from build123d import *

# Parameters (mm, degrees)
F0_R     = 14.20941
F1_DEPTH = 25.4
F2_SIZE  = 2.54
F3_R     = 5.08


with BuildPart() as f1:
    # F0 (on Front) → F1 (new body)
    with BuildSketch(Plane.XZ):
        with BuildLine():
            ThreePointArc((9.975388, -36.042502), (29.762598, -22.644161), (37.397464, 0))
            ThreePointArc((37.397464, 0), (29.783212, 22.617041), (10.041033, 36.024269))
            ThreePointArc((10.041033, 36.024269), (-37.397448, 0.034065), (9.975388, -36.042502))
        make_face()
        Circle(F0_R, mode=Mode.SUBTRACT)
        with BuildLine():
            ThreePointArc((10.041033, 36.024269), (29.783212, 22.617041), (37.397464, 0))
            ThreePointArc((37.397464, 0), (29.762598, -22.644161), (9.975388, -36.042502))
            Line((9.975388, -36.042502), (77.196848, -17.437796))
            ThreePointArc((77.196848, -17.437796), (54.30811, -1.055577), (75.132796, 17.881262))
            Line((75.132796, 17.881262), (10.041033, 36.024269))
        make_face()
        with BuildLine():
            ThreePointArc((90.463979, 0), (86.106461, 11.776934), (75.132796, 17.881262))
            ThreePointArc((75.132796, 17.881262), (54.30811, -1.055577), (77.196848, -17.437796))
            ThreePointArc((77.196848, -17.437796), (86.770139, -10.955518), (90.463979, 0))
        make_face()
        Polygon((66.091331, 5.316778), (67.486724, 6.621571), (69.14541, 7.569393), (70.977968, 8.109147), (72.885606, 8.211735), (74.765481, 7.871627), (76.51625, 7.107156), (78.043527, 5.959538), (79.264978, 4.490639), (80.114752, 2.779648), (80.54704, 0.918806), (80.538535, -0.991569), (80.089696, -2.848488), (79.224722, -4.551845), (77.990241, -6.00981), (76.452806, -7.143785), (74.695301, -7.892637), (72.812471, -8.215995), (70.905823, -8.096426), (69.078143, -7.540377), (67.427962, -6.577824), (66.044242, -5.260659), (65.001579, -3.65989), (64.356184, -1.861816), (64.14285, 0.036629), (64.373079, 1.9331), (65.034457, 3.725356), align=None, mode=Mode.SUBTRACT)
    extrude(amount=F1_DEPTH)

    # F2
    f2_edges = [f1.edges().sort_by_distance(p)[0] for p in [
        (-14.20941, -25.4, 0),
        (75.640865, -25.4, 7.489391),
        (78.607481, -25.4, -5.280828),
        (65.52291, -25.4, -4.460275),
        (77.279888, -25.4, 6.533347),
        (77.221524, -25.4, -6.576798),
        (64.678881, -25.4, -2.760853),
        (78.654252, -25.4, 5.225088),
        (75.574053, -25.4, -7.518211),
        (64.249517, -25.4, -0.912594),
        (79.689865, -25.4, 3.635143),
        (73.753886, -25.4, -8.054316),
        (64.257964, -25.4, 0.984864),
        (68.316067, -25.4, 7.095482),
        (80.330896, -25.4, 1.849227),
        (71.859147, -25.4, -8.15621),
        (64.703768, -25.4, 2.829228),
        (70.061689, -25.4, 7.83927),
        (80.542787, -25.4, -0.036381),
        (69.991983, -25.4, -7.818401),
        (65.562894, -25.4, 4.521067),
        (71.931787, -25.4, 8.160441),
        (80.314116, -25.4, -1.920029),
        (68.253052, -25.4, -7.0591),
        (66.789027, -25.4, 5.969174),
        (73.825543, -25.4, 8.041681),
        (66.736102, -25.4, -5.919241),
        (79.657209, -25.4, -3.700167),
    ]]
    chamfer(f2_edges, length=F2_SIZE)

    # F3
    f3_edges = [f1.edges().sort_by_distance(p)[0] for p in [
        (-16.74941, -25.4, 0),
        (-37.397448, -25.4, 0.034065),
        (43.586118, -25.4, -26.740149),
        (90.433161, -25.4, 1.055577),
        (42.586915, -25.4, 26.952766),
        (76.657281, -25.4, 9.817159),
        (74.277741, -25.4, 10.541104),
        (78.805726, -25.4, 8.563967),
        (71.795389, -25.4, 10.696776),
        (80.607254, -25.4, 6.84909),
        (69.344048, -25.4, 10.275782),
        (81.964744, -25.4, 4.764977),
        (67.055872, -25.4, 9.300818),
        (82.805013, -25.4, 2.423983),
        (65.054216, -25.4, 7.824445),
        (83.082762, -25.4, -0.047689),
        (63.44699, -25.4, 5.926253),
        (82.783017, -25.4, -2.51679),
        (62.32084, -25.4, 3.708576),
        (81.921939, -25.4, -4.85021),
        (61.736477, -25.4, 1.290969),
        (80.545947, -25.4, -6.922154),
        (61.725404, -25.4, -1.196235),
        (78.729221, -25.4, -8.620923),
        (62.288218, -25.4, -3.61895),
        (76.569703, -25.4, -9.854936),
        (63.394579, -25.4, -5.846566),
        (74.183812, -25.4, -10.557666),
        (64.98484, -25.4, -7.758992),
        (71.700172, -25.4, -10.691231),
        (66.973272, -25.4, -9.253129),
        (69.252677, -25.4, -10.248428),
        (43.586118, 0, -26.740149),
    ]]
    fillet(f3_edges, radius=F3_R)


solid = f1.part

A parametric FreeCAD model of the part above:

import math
import FreeCAD as App
import Part
import Sketcher
Q = App.Units.Quantity


def edges_at(feature, points):
    """Names of the edges that pass closest to the given points."""
    edges = feature.Shape.Edges
    near = lambda p: min(range(len(edges)), key=lambda i: edges[i].distToShape(Part.Vertex(*p))[0])
    return sorted({f"Edge{near(p) + 1}" for p in points})


def add_polygon(sketch, points):
    """Adds a closed chain of lines whose ends are joined by coincident constraints."""
    first, n = sketch.GeometryCount, len(points)
    for a, b in zip(points, points[1:] + points[:1]):
        sketch.addGeometry(Part.LineSegment(App.Vector(*a, 0), App.Vector(*b, 0)), False)
    for i in range(n):
        sketch.addConstraint(Sketcher.Constraint("Coincident", first + i, 2, first + (i + 1) % n, 1))

doc = App.newDocument("Part")
body = doc.addObject("PartDesign::Body", "Body")

# Sketch on XZ plane
sketch1 = body.newObject("Sketcher::SketchObject", "Sketch")
sketch1.AttachmentSupport = (doc.getObject("XZ_Plane"), [""])
sketch1.MapMode = "FlatFace"
sketch1.addGeometry(Part.ArcOfCircle(Part.Circle(App.Vector(0, 0, 0), App.Vector(0, 0, 1), 37.397464), math.radians(74.425269), math.radians(285.470351)), False)  # 0
sketch1.addGeometry(Part.LineSegment(App.Vector(9.975388, -36.042502, 0), App.Vector(77.196848, -17.437796, 0)), False)  # 1
sketch1.addGeometry(Part.ArcOfCircle(Part.Circle(App.Vector(72.370637, 0, 0), App.Vector(0, 0, 1), 18.093342), math.radians(-74.529653), math.radians(0.000001)), False)  # 2
sketch1.addGeometry(Part.ArcOfCircle(Part.Circle(App.Vector(72.370636, 0, 0), App.Vector(0, 0, 1), 18.093343), math.radians(-0.000001), math.radians(81.218795)), False)  # 3
sketch1.addGeometry(Part.LineSegment(App.Vector(75.132796, 17.881262, 0), App.Vector(10.041033, 36.024269, 0)), False)  # 4
add_polygon(sketch1, [(65.034457, 3.725356), (66.091331, 5.316778), (67.486724, 6.621571), (69.14541, 7.569393), (70.977968, 8.109147), (72.885606, 8.211735), (74.765481, 7.871627), (76.51625, 7.107156), (78.043527, 5.959538), (79.264978, 4.490639), (80.114752, 2.779648), (80.54704, 0.918806), (80.538535, -0.991569), (80.089696, -2.848488), (79.224722, -4.551845), (77.990241, -6.00981), (76.452806, -7.143785), (74.695301, -7.892637), (72.812471, -8.215995), (70.905823, -8.096426), (69.078143, -7.540377), (67.427962, -6.577824), (66.044242, -5.260659), (65.001579, -3.65989), (64.356184, -1.861816), (64.14285, 0.036629), (64.373079, 1.9331)])  # lines 5-31
sketch1.addGeometry(Part.Circle(App.Vector(0, 0, 0), App.Vector(0, 0, 1), 14.20941), False)  # 32
sketch1.addConstraint([
    Sketcher.Constraint("Coincident", 0, 2, 1, 1),
    Sketcher.Constraint("Coincident", 1, 2, 2, 1),
    Sketcher.Constraint("Coincident", 2, 2, 3, 1),
    Sketcher.Constraint("Coincident", 3, 2, 4, 1),
    Sketcher.Constraint("Coincident", 4, 2, 0, 1),
    Sketcher.Constraint("Coincident", 0, 3, -1, 1),
    Sketcher.Constraint("Coincident", 32, 3, -1, 1),
    Sketcher.Constraint("Coincident", 3, 3, 2, 3),
    Sketcher.Constraint("PointOnObject", 2, 3, -1),
    Sketcher.Constraint("PointOnObject", 2, 2, -1),
    Sketcher.Constraint("Diameter", 32, 28.41882),
    Sketcher.Constraint("DistanceY", 28, 2, -1, 1, Q("0.0732998 in")),
    Sketcher.Constraint("Radius", 0, 37.397464),
    Sketcher.Constraint("Radius", 2, 18.093342),
    Sketcher.Constraint("DistanceY", 13, 2, 9, 2, Q("0.1464998 in")),
    Sketcher.Constraint("DistanceX", 2, 3, 17, 2, Q("0.3039 in")),
    Sketcher.Constraint("DistanceY", 19, 2, 18, 2, Q("0.0574002 in")),
    Sketcher.Constraint("DistanceX", -1, 1, 21, 2, 74.695301),
    Sketcher.Constraint("DistanceY", -1, 1, 30, 2, 1.9331),
    Sketcher.Constraint("DistanceY", 0, 2, 0, 3, 36.042502),
    Sketcher.Constraint("DistanceY", 13, 2, 12, 2, 1.468899),
    Sketcher.Constraint("DistanceX", 11, 2, 14, 2, 3.598502),
    Sketcher.Constraint("DistanceX", 2, 3, 16, 2, 8.167898),
    Sketcher.Constraint("DistanceX", 19, 2, 15, 2, 2.556799),
    Sketcher.Constraint("DistanceY", 23, 2, 25, 2, 1.518602),
    Sketcher.Constraint("DistanceX", 26, 2, 24, 2, 3.033901),
    Sketcher.Constraint("DistanceX", 30, 2, 27, 2, 0.6285),
    Sketcher.Constraint("Distance", 4, 67.57297),
    Sketcher.Constraint("DistanceX", -1, 1, 1, 2, 77.196848),
    Sketcher.Constraint("DistanceX", -1, 1, 2, 2, 90.463979),
    Sketcher.Constraint("DistanceY", -1, 1, 4, 2, 36.024269),
    Sketcher.Constraint("DistanceX", -1, 1, 5, 2, 66.091331),
    Sketcher.Constraint("DistanceY", -1, 1, 5, 2, 5.316778),
    Sketcher.Constraint("DistanceY", -1, 1, 6, 2, 6.621571),
    Sketcher.Constraint("DistanceX", -1, 1, 7, 2, 69.14541),
    Sketcher.Constraint("DistanceX", -1, 1, 8, 2, 70.977968),
    Sketcher.Constraint("DistanceX", -1, 1, 10, 2, 74.765481),
    Sketcher.Constraint("DistanceX", -1, 1, 11, 2, 76.51625),
    Sketcher.Constraint("DistanceY", -1, 1, 12, 2, 5.959538),
    Sketcher.Constraint("DistanceX", -1, 1, 13, 2, 79.264978),
    Sketcher.Constraint("DistanceX", -1, 1, 15, 2, 80.54704),
    Sketcher.Constraint("DistanceY", 16, 2, -1, 1, 0.991569),
    Sketcher.Constraint("DistanceY", 17, 2, -1, 1, 2.848488),
    Sketcher.Constraint("DistanceX", -1, 1, 18, 2, 79.224722),
    Sketcher.Constraint("DistanceY", 19, 2, -1, 1, 6.00981),
    Sketcher.Constraint("DistanceX", -1, 1, 22, 2, 72.812471),
    Sketcher.Constraint("DistanceX", -1, 1, 25, 2, 67.427962),
    Sketcher.Constraint("DistanceX", -1, 1, 26, 2, 66.044242),
    Sketcher.Constraint("DistanceY", 26, 2, -1, 1, 5.260659),
    Sketcher.Constraint("DistanceX", -1, 1, 27, 2, 65.001579),
    Sketcher.Constraint("DistanceY", 27, 2, -1, 1, 3.65989),
    Sketcher.Constraint("DistanceX", -1, 1, 29, 2, 64.14285),
    Sketcher.Constraint("DistanceY", -1, 1, 29, 2, 0.036629),
    Sketcher.Constraint("DistanceY", 6, 2, 7, 2, 0.947822),
    Sketcher.Constraint("DistanceY", 5, 2, 8, 2, 2.792369),
    Sketcher.Constraint("DistanceX", 3, 3, 9, 2, 0.51497),
    Sketcher.Constraint("DistanceY", 10, 2, 8, 2, 0.23752),
    Sketcher.Constraint("DistanceY", 11, 2, 10, 2, 0.764471),
    Sketcher.Constraint("DistanceX", 9, 2, 12, 2, 5.157921),
    Sketcher.Constraint("DistanceY", 14, 2, 13, 2, 1.710991),
    Sketcher.Constraint("DistanceY", 15, 2, 14, 2, 1.860842),
    Sketcher.Constraint("DistanceY", 20, 2, 18, 2, 2.59194),
    Sketcher.Constraint("DistanceX", 20, 2, 17, 2, 3.63689),
    Sketcher.Constraint("DistanceY", 21, 2, 20, 2, 0.748852),
    Sketcher.Constraint("DistanceY", 22, 2, 20, 2, 1.07221),
    Sketcher.Constraint("DistanceX", 23, 2, 22, 2, 1.906648),
    Sketcher.Constraint("DistanceY", 22, 2, 23, 2, 0.119569),
    Sketcher.Constraint("DistanceY", 23, 2, 24, 2, 0.556049),
    Sketcher.Constraint("DistanceX", 28, 2, 24, 2, 4.721959),
    Sketcher.Constraint("DistanceY", 28, 2, 31, 2, 5.587172),
    Sketcher.Constraint("Distance", 5, 1.910394),
    Sketcher.Constraint("Distance", 6, 1.910394),
])
pad1 = body.newObject("PartDesign::Pad", "Pad")
pad1.Profile = sketch1
pad1.Length = Q("1 in")
doc.recompute()

chamfer = body.newObject("PartDesign::Chamfer", "Chamfer")
chamfer.Base = (pad1, edges_at(pad1, [
    (-14.209, -25.4, 0),
    (75.641, -25.4, 7.489),
    (78.607, -25.4, -5.281),
    (65.523, -25.4, -4.46),
    (77.28, -25.4, 6.533),
    (77.222, -25.4, -6.577),
    (64.679, -25.4, -2.761),
    (78.654, -25.4, 5.225),
    (75.574, -25.4, -7.518),
    (64.25, -25.4, -0.913),
    (79.69, -25.4, 3.635),
    (73.754, -25.4, -8.054),
    (64.258, -25.4, 0.985),
    (68.316, -25.4, 7.095),
    (80.331, -25.4, 1.849),
    (71.859, -25.4, -8.156),
    (64.704, -25.4, 2.829),
    (70.062, -25.4, 7.839),
    (80.543, -25.4, -0.036),
    (69.992, -25.4, -7.818),
    (65.563, -25.4, 4.521),
    (71.932, -25.4, 8.16),
    (80.314, -25.4, -1.92),
    (68.253, -25.4, -7.059),
    (66.789, -25.4, 5.969),
    (73.826, -25.4, 8.042),
    (66.736, -25.4, -5.919),
    (79.657, -25.4, -3.7),
]))
chamfer.Size = Q("0.1 in")
doc.recompute()

fillet = body.newObject("PartDesign::Fillet", "Fillet")
fillet.Base = (chamfer, edges_at(chamfer, [
    (-16.749, -25.4, 0),
    (-37.397, -25.4, 0.034),
    (43.586, -25.4, -26.74),
    (86.106, -25.4, 11.777),
    (42.587, -25.4, 26.953),
    (76.657, -25.4, 9.817),
    (74.278, -25.4, 10.541),
    (78.806, -25.4, 8.564),
    (71.795, -25.4, 10.697),
    (80.607, -25.4, 6.849),
    (69.344, -25.4, 10.276),
    (81.965, -25.4, 4.765),
    (67.056, -25.4, 9.301),
    (82.805, -25.4, 2.424),
    (65.054, -25.4, 7.824),
    (83.083, -25.4, -0.048),
    (63.447, -25.4, 5.926),
    (82.783, -25.4, -2.517),
    (62.321, -25.4, 3.709),
    (81.922, -25.4, -4.85),
    (61.736, -25.4, 1.291),
    (80.546, -25.4, -6.922),
    (61.725, -25.4, -1.196),
    (78.729, -25.4, -8.621),
    (62.288, -25.4, -3.619),
    (76.57, -25.4, -9.855),
    (63.395, -25.4, -5.847),
    (74.184, -25.4, -10.558),
    (64.985, -25.4, -7.759),
    (71.7, -25.4, -10.691),
    (66.973, -25.4, -9.253),
    (69.253, -25.4, -10.248),
    (43.586, 0, -26.74),
]))
fillet.Radius = Q("0.2 in")

doc.recompute()
